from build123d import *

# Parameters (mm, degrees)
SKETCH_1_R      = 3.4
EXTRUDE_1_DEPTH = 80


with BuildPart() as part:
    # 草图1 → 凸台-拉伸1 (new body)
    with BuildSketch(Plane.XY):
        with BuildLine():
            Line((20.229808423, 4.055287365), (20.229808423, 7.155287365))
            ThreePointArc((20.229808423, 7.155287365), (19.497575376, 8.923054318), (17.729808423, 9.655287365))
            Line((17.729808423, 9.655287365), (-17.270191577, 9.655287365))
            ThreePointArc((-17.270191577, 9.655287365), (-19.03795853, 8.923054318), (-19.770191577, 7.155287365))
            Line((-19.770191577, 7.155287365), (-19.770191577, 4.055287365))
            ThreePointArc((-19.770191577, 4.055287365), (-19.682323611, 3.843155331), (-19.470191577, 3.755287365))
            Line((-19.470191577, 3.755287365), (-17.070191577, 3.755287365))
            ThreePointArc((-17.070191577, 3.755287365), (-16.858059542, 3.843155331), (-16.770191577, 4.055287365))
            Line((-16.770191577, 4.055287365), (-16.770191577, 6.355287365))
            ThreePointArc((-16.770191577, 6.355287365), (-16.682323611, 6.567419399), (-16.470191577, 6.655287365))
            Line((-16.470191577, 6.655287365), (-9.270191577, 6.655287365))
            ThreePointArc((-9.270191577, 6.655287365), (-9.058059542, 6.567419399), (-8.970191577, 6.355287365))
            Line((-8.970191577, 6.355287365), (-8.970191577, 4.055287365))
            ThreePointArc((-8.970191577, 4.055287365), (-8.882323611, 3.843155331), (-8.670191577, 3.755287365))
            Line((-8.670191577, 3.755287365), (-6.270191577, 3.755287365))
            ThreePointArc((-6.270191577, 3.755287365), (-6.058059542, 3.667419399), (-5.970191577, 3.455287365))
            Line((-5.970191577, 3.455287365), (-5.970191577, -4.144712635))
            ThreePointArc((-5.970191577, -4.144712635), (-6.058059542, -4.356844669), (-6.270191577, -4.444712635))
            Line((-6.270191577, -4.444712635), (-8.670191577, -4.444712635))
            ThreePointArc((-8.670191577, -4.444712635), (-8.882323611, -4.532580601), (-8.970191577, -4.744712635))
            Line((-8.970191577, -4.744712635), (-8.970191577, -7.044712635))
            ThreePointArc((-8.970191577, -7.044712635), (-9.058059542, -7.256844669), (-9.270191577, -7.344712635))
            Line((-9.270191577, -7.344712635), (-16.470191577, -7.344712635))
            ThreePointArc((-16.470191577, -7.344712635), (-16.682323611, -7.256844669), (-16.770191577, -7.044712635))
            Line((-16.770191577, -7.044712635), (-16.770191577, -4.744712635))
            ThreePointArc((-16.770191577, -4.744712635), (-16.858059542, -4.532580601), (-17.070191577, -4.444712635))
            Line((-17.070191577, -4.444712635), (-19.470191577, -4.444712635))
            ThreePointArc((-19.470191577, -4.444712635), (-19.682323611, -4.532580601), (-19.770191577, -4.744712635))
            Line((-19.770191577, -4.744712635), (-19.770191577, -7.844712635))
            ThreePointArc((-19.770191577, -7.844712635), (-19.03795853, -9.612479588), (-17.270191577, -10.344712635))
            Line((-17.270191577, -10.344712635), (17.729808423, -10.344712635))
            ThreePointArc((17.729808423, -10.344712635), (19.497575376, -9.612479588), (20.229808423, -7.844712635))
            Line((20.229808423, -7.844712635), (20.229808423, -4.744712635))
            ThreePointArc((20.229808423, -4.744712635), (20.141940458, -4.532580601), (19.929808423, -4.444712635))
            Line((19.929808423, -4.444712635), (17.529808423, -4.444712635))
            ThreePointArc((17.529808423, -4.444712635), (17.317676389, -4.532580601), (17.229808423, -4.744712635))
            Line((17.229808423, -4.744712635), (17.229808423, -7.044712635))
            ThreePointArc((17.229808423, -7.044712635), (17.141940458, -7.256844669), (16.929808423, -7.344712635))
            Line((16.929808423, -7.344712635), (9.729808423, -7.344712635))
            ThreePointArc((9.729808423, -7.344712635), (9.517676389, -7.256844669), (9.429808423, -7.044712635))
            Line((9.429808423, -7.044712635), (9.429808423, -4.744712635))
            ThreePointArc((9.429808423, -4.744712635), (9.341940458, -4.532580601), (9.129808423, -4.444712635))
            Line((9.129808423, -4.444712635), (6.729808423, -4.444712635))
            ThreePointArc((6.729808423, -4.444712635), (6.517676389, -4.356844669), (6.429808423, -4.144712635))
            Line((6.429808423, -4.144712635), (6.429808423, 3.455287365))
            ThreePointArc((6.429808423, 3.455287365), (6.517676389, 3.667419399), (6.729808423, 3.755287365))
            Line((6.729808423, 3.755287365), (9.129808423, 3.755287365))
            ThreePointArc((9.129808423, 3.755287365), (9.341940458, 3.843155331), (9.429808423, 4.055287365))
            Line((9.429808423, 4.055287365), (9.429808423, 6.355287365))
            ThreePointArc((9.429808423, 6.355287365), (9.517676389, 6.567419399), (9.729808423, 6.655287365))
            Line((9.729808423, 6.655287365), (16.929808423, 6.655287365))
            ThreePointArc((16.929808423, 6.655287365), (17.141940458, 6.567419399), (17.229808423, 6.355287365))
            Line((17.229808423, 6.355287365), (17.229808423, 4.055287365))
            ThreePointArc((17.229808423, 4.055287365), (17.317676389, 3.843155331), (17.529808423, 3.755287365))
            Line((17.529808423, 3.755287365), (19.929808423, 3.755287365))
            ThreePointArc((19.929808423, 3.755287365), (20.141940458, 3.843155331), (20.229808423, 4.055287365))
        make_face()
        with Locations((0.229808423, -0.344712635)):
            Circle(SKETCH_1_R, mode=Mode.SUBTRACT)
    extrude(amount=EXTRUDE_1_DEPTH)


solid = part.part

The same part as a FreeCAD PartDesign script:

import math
import FreeCAD as App
import Part
import Sketcher

V = App.Vector

doc = App.newDocument("Part")
params = doc.addObject("Spreadsheet::Sheet", "Params")
for row, (alias, value) in enumerate([
    ("sketch1_diameter", "6.8 mm"),
    ("sketch1_radius", "2.5 mm"),
    ("sketch1_radius2", "0.3 mm"),
    ("sketch1_width", "35 mm"),
    ("sketch1_width2", "2.4 mm"),
    ("pad1_length", "80 mm"),
], start=1):
    params.set(f"A{row}", alias)
    params.set(f"B{row}", "=" + value)
    params.setAlias(f"B{row}", alias)

body = doc.addObject("PartDesign::Body", "Body")

# Sketch on XY plane
sketch1 = body.newObject("Sketcher::SketchObject", "Sketch")
sketch1.AttachmentSupport = (doc.getObject("XY_Plane"), [""])
sketch1.MapMode = "FlatFace"
sketch1.addGeometry(Part.LineSegment(V(20.23, 4.06, 0), V(20.23, 7.16, 0)), False)
sketch1.addGeometry(Part.ArcOfCircle(Part.Circle(V(17.73, 7.16, 0), V(0, 0, 1), 2.5), math.radians(0), math.radians(90)), False)
sketch1.addGeometry(Part.LineSegment(V(17.73, 9.66, 0), V(-17.27, 9.66, 0)), False)
sketch1.addGeometry(Part.ArcOfCircle(Part.Circle(V(-17.27, 7.16, 0), V(0, 0, 1), 2.5), math.radians(90), math.radians(180)), False)
sketch1.addGeometry(Part.LineSegment(V(-19.77, 7.16, 0), V(-19.77, 4.06, 0)), False)
sketch1.addGeometry(Part.ArcOfCircle(Part.Circle(V(-19.47, 4.06, 0), V(0, 0, 1), 0.3), math.radians(-180), math.radians(-90)), False)
sketch1.addGeometry(Part.LineSegment(V(-19.47, 3.76, 0), V(-17.07, 3.76, 0)), False)
sketch1.addGeometry(Part.ArcOfCircle(Part.Circle(V(-17.07, 4.06, 0), V(0, 0, 1), 0.3), math.radians(-90), math.radians(0)), False)
sketch1.addGeometry(Part.LineSegment(V(-16.77, 4.06, 0), V(-16.77, 6.36, 0)), False)
sketch1.addGeometry(Part.ArcOfCircle(Part.Circle(V(-16.47, 6.36, 0), V(0, 0, 1), 0.3), math.radians(90), math.radians(180)), False)
sketch1.addGeometry(Part.LineSegment(V(-16.47, 6.66, 0), V(-9.27, 6.66, 0)), False)
sketch1.addGeometry(Part.ArcOfCircle(Part.Circle(V(-9.27, 6.36, 0), V(0, 0, 1), 0.3), math.radians(0), math.radians(90)), False)
sketch1.addGeometry(Part.LineSegment(V(-8.97, 6.36, 0), V(-8.97, 4.06, 0)), False)
sketch1.addGeometry(Part.ArcOfCircle(Part.Circle(V(-8.67, 4.06, 0), V(0, 0, 1), 0.3), math.radians(-180), math.radians(-90)), False)
sketch1.addGeometry(Part.LineSegment(V(-8.67, 3.76, 0), V(-6.27, 3.76, 0)), False)
sketch1.addGeometry(Part.ArcOfCircle(Part.Circle(V(-6.27, 3.46, 0), V(0, 0, 1), 0.3), math.radians(0), math.radians(90)), False)
sketch1.addGeometry(Part.LineSegment(V(-5.97, 3.46, 0), V(-5.97, -4.14, 0)), False)
sketch1.addGeometry(Part.ArcOfCircle(Part.Circle(V(-6.27, -4.14, 0), V(0, 0, 1), 0.3), math.radians(-90), math.radians(0)), False)
sketch1.addGeometry(Part.LineSegment(V(-6.27, -4.44, 0), V(-8.67, -4.44, 0)), False)
sketch1.addGeometry(Part.ArcOfCircle(Part.Circle(V(-8.67, -4.74, 0), V(0, 0, 1), 0.3), math.radians(90), math.radians(180)), False)
sketch1.addGeometry(Part.LineSegment(V(-8.97, -4.74, 0), V(-8.97, -7.04, 0)), False)
sketch1.addGeometry(Part.ArcOfCircle(Part.Circle(V(-9.27, -7.04, 0), V(0, 0, 1), 0.3), math.radians(-90), math.radians(0)), False)
sketch1.addGeometry(Part.LineSegment(V(-9.27, -7.34, 0), V(-16.47, -7.34, 0)), False)
sketch1.addGeometry(Part.ArcOfCircle(Part.Circle(V(-16.47, -7.04, 0), V(0, 0, 1), 0.3), math.radians(-180), math.radians(-90)), False)
sketch1.addGeometry(Part.LineSegment(V(-16.77, -7.04, 0), V(-16.77, -4.74, 0)), False)
sketch1.addGeometry(Part.ArcOfCircle(Part.Circle(V(-17.07, -4.74, 0), V(0, 0, 1), 0.3), math.radians(0), math.radians(90)), False)
sketch1.addGeometry(Part.LineSegment(V(-17.07, -4.44, 0), V(-19.47, -4.44, 0)), False)
sketch1.addGeometry(Part.ArcOfCircle(Part.Circle(V(-19.47, -4.74, 0), V(0, 0, 1), 0.3), math.radians(90), math.radians(180)), False)
sketch1.addGeometry(Part.LineSegment(V(-19.77, -4.74, 0), V(-19.77, -7.84, 0)), False)
sketch1.addGeometry(Part.ArcOfCircle(Part.Circle(V(-17.27, -7.84, 0), V(0, 0, 1), 2.5), math.radians(180), math.radians(270)), False)
sketch1.addGeometry(Part.LineSegment(V(-17.27, -10.34, 0), V(17.73, -10.34, 0)), False)
sketch1.addGeometry(Part.ArcOfCircle(Part.Circle(V(17.73, -7.84, 0), V(0, 0, 1), 2.5), math.radians(-90), math.radians(0)), False)
sketch1.addGeometry(Part.LineSegment(V(20.23, -7.84, 0), V(20.23, -4.74, 0)), False)
sketch1.addGeometry(Part.ArcOfCircle(Part.Circle(V(19.93, -4.74, 0), V(0, 0, 1), 0.3), math.radians(0), math.radians(90)), False)
sketch1.addGeometry(Part.LineSegment(V(19.93, -4.44, 0), V(17.53, -4.44, 0)), False)
sketch1.addGeometry(Part.ArcOfCircle(Part.Circle(V(17.53, -4.74, 0), V(0, 0, 1), 0.3), math.radians(90), math.radians(180)), False)
sketch1.addGeometry(Part.LineSegment(V(17.23, -4.74, 0), V(17.23, -7.04, 0)), False)
sketch1.addGeometry(Part.ArcOfCircle(Part.Circle(V(16.93, -7.04, 0), V(0, 0, 1), 0.3), math.radians(-90), math.radians(0)), False)
sketch1.addGeometry(Part.LineSegment(V(16.93, -7.34, 0), V(9.73, -7.34, 0)), False)
sketch1.addGeometry(Part.ArcOfCircle(Part.Circle(V(9.73, -7.04, 0), V(0, 0, 1), 0.3), math.radians(-180), math.radians(-90)), False)
sketch1.addGeometry(Part.LineSegment(V(9.43, -7.04, 0), V(9.43, -4.74, 0)), False)
sketch1.addGeometry(Part.ArcOfCircle(Part.Circle(V(9.13, -4.74, 0), V(0, 0, 1), 0.3), math.radians(0), math.radians(90)), False)
sketch1.addGeometry(Part.LineSegment(V(9.13, -4.44, 0), V(6.73, -4.44, 0)), False)
sketch1.addGeometry(Part.ArcOfCircle(Part.Circle(V(6.73, -4.14, 0), V(0, 0, 1), 0.3), math.radians(-180), math.radians(-90)), False)
sketch1.addGeometry(Part.LineSegment(V(6.43, -4.14, 0), V(6.43, 3.46, 0)), False)
sketch1.addGeometry(Part.ArcOfCircle(Part.Circle(V(6.73, 3.46, 0), V(0, 0, 1), 0.3), math.radians(90), math.radians(180)), False)
sketch1.addGeometry(Part.LineSegment(V(6.73, 3.76, 0), V(9.13, 3.76, 0)), False)
sketch1.addGeometry(Part.ArcOfCircle(Part.Circle(V(9.13, 4.06, 0), V(0, 0, 1), 0.3), math.radians(-90), math.radians(0)), False)
sketch1.addGeometry(Part.LineSegment(V(9.43, 4.06, 0), V(9.43, 6.36, 0)), False)
sketch1.addGeometry(Part.ArcOfCircle(Part.Circle(V(9.73, 6.36, 0), V(0, 0, 1), 0.3), math.radians(90), math.radians(180)), False)
sketch1.addGeometry(Part.LineSegment(V(9.73, 6.66, 0), V(16.93, 6.66, 0)), False)
sketch1.addGeometry(Part.ArcOfCircle(Part.Circle(V(16.93, 6.36, 0), V(0, 0, 1), 0.3), math.radians(0), math.radians(90)), False)
sketch1.addGeometry(Part.LineSegment(V(17.23, 6.36, 0), V(17.23, 4.06, 0)), False)
sketch1.addGeometry(Part.ArcOfCircle(Part.Circle(V(17.53, 4.06, 0), V(0, 0, 1), 0.3), math.radians(-180), math.radians(-90)), False)
sketch1.addGeometry(Part.LineSegment(V(17.53, 3.76, 0), V(19.93, 3.76, 0)), False)
sketch1.addGeometry(Part.ArcOfCircle(Part.Circle(V(19.93, 4.06, 0), V(0, 0, 1), 0.3), math.radians(-90), math.radians(0)), False)
sketch1.addGeometry(Part.Circle(V(0.23, -0.34, 0), V(0, 0, 1), 3.4), False)
sketch1.addConstraint(Sketcher.Constraint("Tangent", 0, 2, 1, 1))
sketch1.addConstraint(Sketcher.Constraint("Tangent", 1, 2, 2, 1))
sketch1.addConstraint(Sketcher.Constraint("Tangent", 2, 2, 3, 1))
sketch1.addConstraint(Sketcher.Constraint("Tangent", 3, 2, 4, 1))
sketch1.addConstraint(Sketcher.Constraint("Tangent", 4, 2, 5, 1))
sketch1.addConstraint(Sketcher.Constraint("Tangent", 5, 2, 6, 1))
sketch1.addConstraint(Sketcher.Constraint("Tangent", 6, 2, 7, 1))
sketch1.addConstraint(Sketcher.Constraint("Tangent", 7, 2, 8, 1))
sketch1.addConstraint(Sketcher.Constraint("Tangent", 8, 2, 9, 2))
sketch1.addConstraint(Sketcher.Constraint("Tangent", 9, 1, 10, 1))
sketch1.addConstraint(Sketcher.Constraint("Tangent", 10, 2, 11, 2))
sketch1.addConstraint(Sketcher.Constraint("Tangent", 11, 1, 12, 1))
sketch1.addConstraint(Sketcher.Constraint("Tangent", 12, 2, 13, 1))
sketch1.addConstraint(Sketcher.Constraint("Tangent", 13, 2, 14, 1))
sketch1.addConstraint(Sketcher.Constraint("Tangent", 14, 2, 15, 2))
sketch1.addConstraint(Sketcher.Constraint("Tangent", 15, 1, 16, 1))
sketch1.addConstraint(Sketcher.Constraint("Tangent", 16, 2, 17, 2))
sketch1.addConstraint(Sketcher.Constraint("Tangent", 17, 1, 18, 1))
sketch1.addConstraint(Sketcher.Constraint("Tangent", 18, 2, 19, 1))
sketch1.addConstraint(Sketcher.Constraint("Tangent", 19, 2, 20, 1))
sketch1.addConstraint(Sketcher.Constraint("Tangent", 20, 2, 21, 2))
sketch1.addConstraint(Sketcher.Constraint("Tangent", 21, 1, 22, 1))
sketch1.addConstraint(Sketcher.Constraint("Tangent", 22, 2, 23, 2))
sketch1.addConstraint(Sketcher.Constraint("Tangent", 23, 1, 24, 1))
sketch1.addConstraint(Sketcher.Constraint("Tangent", 24, 2, 25, 1))
sketch1.addConstraint(Sketcher.Constraint("Tangent", 25, 2, 26, 1))
sketch1.addConstraint(Sketcher.Constraint("Tangent", 26, 2, 27, 1))
sketch1.addConstraint(Sketcher.Constraint("Tangent", 27, 2, 28, 1))
sketch1.addConstraint(Sketcher.Constraint("Tangent", 28, 2, 29, 1))
sketch1.addConstraint(Sketcher.Constraint("Tangent", 29, 2, 30, 1))
sketch1.addConstraint(Sketcher.Constraint("Tangent", 30, 2, 31, 1))
sketch1.addConstraint(Sketcher.Constraint("Tangent", 31, 2, 32, 1))
sketch1.addConstraint(Sketcher.Constraint("Tangent", 32, 2, 33, 1))
sketch1.addConstraint(Sketcher.Constraint("Tangent", 33, 2, 34, 1))
sketch1.addConstraint(Sketcher.Constraint("Tangent", 34, 2, 35, 1))
sketch1.addConstraint(Sketcher.Constraint("Tangent", 35, 2, 36, 1))
sketch1.addConstraint(Sketcher.Constraint("Tangent", 36, 2, 37, 2))
sketch1.addConstraint(Sketcher.Constraint("Tangent", 37, 1, 38, 1))
sketch1.addConstraint(Sketcher.Constraint("Tangent", 38, 2, 39, 2))
sketch1.addConstraint(Sketcher.Constraint("Tangent", 39, 1, 40, 1))
sketch1.addConstraint(Sketcher.Constraint("Tangent", 40, 2, 41, 1))
sketch1.addConstraint(Sketcher.Constraint("Tangent", 41, 2, 42, 1))
sketch1.addConstraint(Sketcher.Constraint("Tangent", 42, 2, 43, 2))
sketch1.addConstraint(Sketcher.Constraint("Tangent", 43, 1, 44, 1))
sketch1.addConstraint(Sketcher.Constraint("Tangent", 44, 2, 45, 2))
sketch1.addConstraint(Sketcher.Constraint("Tangent", 45, 1, 46, 1))
sketch1.addConstraint(Sketcher.Constraint("Tangent", 46, 2, 47, 1))
sketch1.addConstraint(Sketcher.Constraint("Tangent", 47, 2, 48, 1))
sketch1.addConstraint(Sketcher.Constraint("Tangent", 48, 2, 49, 2))
sketch1.addConstraint(Sketcher.Constraint("Tangent", 49, 1, 50, 1))
sketch1.addConstraint(Sketcher.Constraint("Tangent", 50, 2, 51, 2))
sketch1.addConstraint(Sketcher.Constraint("Tangent", 51, 1, 52, 1))
sketch1.addConstraint(Sketcher.Constraint("Tangent", 52, 2, 53, 1))
sketch1.addConstraint(Sketcher.Constraint("Tangent", 53, 2, 54, 1))
sketch1.addConstraint(Sketcher.Constraint("Tangent", 54, 2, 55, 1))
sketch1.addConstraint(Sketcher.Constraint("Tangent", 55, 2, 0, 1))
sketch1.addConstraint(Sketcher.Constraint("Vertical", 0))
sketch1.addConstraint(Sketcher.Constraint("Horizontal", 2))
sketch1.addConstraint(Sketcher.Constraint("Vertical", 4))
sketch1.addConstraint(Sketcher.Constraint("Horizontal", 6))
sketch1.addConstraint(Sketcher.Constraint("Vertical", 8))
sketch1.addConstraint(Sketcher.Constraint("Horizontal", 10))
sketch1.addConstraint(Sketcher.Constraint("Vertical", 12))
sketch1.addConstraint(Sketcher.Constraint("Horizontal", 14))
sketch1.addConstraint(Sketcher.Constraint("Vertical", 16))
sketch1.addConstraint(Sketcher.Constraint("Horizontal", 18))
sketch1.addConstraint(Sketcher.Constraint("Vertical", 20))
sketch1.addConstraint(Sketcher.Constraint("Horizontal", 22))
sketch1.addConstraint(Sketcher.Constraint("Vertical", 24))
sketch1.addConstraint(Sketcher.Constraint("Horizontal", 26))
sketch1.addConstraint(Sketcher.Constraint("Vertical", 28))
sketch1.addConstraint(Sketcher.Constraint("Horizontal", 30))
sketch1.addConstraint(Sketcher.Constraint("Vertical", 32))
sketch1.addConstraint(Sketcher.Constraint("Horizontal", 34))
sketch1.addConstraint(Sketcher.Constraint("Vertical", 36))
sketch1.addConstraint(Sketcher.Constraint("Horizontal", 38))
sketch1.addConstraint(Sketcher.Constraint("Vertical", 40))
sketch1.addConstraint(Sketcher.Constraint("Horizontal", 42))
sketch1.addConstraint(Sketcher.Constraint("Vertical", 44))
sketch1.addConstraint(Sketcher.Constraint("Horizontal", 46))
sketch1.addConstraint(Sketcher.Constraint("Vertical", 48))
sketch1.addConstraint(Sketcher.Constraint("Horizontal", 50))
sketch1.addConstraint(Sketcher.Constraint("Vertical", 52))
sketch1.addConstraint(Sketcher.Constraint("Horizontal", 54))
sketch1.addConstraint(Sketcher.Constraint("Equal", 1, 3))
sketch1.addConstraint(Sketcher.Constraint("Equal", 5, 7))
sketch1.addConstraint(Sketcher.Constraint("Equal", 7, 9))
sketch1.addConstraint(Sketcher.Constraint("Equal", 9, 11))
sketch1.addConstraint(Sketcher.Constraint("Equal", 11, 13))
sketch1.addConstraint(Sketcher.Constraint("Equal", 13, 15))
sketch1.addConstraint(Sketcher.Constraint("Equal", 15, 17))
sketch1.addConstraint(Sketcher.Constraint("Equal", 17, 19))
sketch1.addConstraint(Sketcher.Constraint("Equal", 19, 21))
sketch1.addConstraint(Sketcher.Constraint("Equal", 21, 23))
sketch1.addConstraint(Sketcher.Constraint("Equal", 23, 25))
sketch1.addConstraint(Sketcher.Constraint("Equal", 25, 27))
sketch1.addConstraint(Sketcher.Constraint("Equal", 3, 29))
sketch1.addConstraint(Sketcher.Constraint("Equal", 29, 31))
sketch1.addConstraint(Sketcher.Constraint("Equal", 27, 33))
sketch1.addConstraint(Sketcher.Constraint("Equal", 33, 35))
sketch1.addConstraint(Sketcher.Constraint("Equal", 35, 37))
sketch1.addConstraint(Sketcher.Constraint("Equal", 37, 39))
sketch1.addConstraint(Sketcher.Constraint("Equal", 39, 41))
sketch1.addConstraint(Sketcher.Constraint("Equal", 41, 43))
sketch1.addConstraint(Sketcher.Constraint("Equal", 43, 45))
sketch1.addConstraint(Sketcher.Constraint("Equal", 45, 47))
sketch1.addConstraint(Sketcher.Constraint("Equal", 47, 49))
sketch1.addConstraint(Sketcher.Constraint("Equal", 49, 51))
sketch1.addConstraint(Sketcher.Constraint("Equal", 51, 53))
sketch1.addConstraint(Sketcher.Constraint("Equal", 53, 55))
sketch1.addConstraint(Sketcher.Constraint("Horizontal", 7, 3, 13, 3))
sketch1.addConstraint(Sketcher.Constraint("Horizontal", 19, 3, 25, 3))
sketch1.addConstraint(Sketcher.Constraint("Horizontal", 27, 3, 33, 3))
sketch1.addConstraint(Sketcher.Constraint("Horizontal", 23, 3, 37, 3))
sketch1.addConstraint(Sketcher.Constraint("Horizontal", 35, 3, 41, 3))
sketch1.addConstraint(Sketcher.Constraint("Horizontal", 15, 3, 45, 3))
sketch1.addConstraint(Sketcher.Constraint("Horizontal", 11, 3, 49, 3))
sketch1.addConstraint(Sketcher.Constraint("Horizontal", 47, 3, 53, 3))
sketch1.addConstraint(Sketcher.Constraint("Vertical", 13, 3, 19, 3))
sketch1.addConstraint(Sketcher.Constraint("Vertical", 9, 3, 23, 3))
sketch1.addConstraint(Sketcher.Constraint("Vertical", 5, 3, 27, 3))
sketch1.addConstraint(Sketcher.Constraint("Vertical", 1, 3, 31, 3))
sketch1.addConstraint(Sketcher.Constraint("Vertical", 41, 3, 47, 3))
sketch1.addConstraint(Sketcher.Constraint("Vertical", 37, 3, 51, 3))
sketch1.addConstraint(Sketcher.Constraint("Equal", 6, 14))
sketch1.addConstraint(Sketcher.Constraint("Equal", 26, 34))
sketch1.addConstraint(Sketcher.Constraint("Equal", 22, 38))
sketch1.addConstraint(Sketcher.Constraint("Equal", 34, 42))
sketch1.addConstraint(Sketcher.Constraint("Equal", 12, 20))
sketch1.addConstraint(Sketcher.Constraint("Equal", 4, 28))
sketch1.addConstraint(Sketcher.Constraint("Diameter", 56, 6.8))
sketch1.addConstraint(Sketcher.Constraint("Radius", 1, 2.5))
sketch1.addConstraint(Sketcher.Constraint("Radius", 5, 0.3))
sketch1.addConstraint(Sketcher.Constraint("DistanceX", 2, 2, 2, 1, 35.0))
sketch1.addConstraint(Sketcher.Constraint("DistanceX", 6, 1, 6, 2, 2.4))
sketch1.addConstraint(Sketcher.Constraint("DistanceX", 10, 1, 10, 2, 7.2))
sketch1.addConstraint(Sketcher.Constraint("DistanceY", 0, 1, 0, 2, 3.1))
sketch1.addConstraint(Sketcher.Constraint("DistanceY", 8, 1, 8, 2, 2.3))
sketch1.addConstraint(Sketcher.Constraint("DistanceY", 16, 2, 16, 1, 7.6))
sketch1.addConstraint(Sketcher.Constraint("DistanceX", -1, 1, 1, 3, 17.729808))
sketch1.addConstraint(Sketcher.Constraint("DistanceX", -1, 1, 56, 3, 0.229808))
sketch1.addConstraint(Sketcher.Constraint("DistanceY", -1, 1, 1, 3, 7.155287))
sketch1.addConstraint(Sketcher.Constraint("DistanceY", 56, 3, -1, 1, 0.344713))
sketch1.setExpression("Constraints[130]", "Params.sketch1_diameter")
sketch1.setExpression("Constraints[131]", "Params.sketch1_radius")
sketch1.setExpression("Constraints[132]", "Params.sketch1_radius2")
sketch1.setExpression("Constraints[133]", "Params.sketch1_width")
sketch1.setExpression("Constraints[134]", "Params.sketch1_width2")
pad1 = body.newObject("PartDesign::Pad", "Pad")
pad1.Profile = sketch1
pad1.setExpression("Length", "Params.pad1_length")

doc.recompute()
